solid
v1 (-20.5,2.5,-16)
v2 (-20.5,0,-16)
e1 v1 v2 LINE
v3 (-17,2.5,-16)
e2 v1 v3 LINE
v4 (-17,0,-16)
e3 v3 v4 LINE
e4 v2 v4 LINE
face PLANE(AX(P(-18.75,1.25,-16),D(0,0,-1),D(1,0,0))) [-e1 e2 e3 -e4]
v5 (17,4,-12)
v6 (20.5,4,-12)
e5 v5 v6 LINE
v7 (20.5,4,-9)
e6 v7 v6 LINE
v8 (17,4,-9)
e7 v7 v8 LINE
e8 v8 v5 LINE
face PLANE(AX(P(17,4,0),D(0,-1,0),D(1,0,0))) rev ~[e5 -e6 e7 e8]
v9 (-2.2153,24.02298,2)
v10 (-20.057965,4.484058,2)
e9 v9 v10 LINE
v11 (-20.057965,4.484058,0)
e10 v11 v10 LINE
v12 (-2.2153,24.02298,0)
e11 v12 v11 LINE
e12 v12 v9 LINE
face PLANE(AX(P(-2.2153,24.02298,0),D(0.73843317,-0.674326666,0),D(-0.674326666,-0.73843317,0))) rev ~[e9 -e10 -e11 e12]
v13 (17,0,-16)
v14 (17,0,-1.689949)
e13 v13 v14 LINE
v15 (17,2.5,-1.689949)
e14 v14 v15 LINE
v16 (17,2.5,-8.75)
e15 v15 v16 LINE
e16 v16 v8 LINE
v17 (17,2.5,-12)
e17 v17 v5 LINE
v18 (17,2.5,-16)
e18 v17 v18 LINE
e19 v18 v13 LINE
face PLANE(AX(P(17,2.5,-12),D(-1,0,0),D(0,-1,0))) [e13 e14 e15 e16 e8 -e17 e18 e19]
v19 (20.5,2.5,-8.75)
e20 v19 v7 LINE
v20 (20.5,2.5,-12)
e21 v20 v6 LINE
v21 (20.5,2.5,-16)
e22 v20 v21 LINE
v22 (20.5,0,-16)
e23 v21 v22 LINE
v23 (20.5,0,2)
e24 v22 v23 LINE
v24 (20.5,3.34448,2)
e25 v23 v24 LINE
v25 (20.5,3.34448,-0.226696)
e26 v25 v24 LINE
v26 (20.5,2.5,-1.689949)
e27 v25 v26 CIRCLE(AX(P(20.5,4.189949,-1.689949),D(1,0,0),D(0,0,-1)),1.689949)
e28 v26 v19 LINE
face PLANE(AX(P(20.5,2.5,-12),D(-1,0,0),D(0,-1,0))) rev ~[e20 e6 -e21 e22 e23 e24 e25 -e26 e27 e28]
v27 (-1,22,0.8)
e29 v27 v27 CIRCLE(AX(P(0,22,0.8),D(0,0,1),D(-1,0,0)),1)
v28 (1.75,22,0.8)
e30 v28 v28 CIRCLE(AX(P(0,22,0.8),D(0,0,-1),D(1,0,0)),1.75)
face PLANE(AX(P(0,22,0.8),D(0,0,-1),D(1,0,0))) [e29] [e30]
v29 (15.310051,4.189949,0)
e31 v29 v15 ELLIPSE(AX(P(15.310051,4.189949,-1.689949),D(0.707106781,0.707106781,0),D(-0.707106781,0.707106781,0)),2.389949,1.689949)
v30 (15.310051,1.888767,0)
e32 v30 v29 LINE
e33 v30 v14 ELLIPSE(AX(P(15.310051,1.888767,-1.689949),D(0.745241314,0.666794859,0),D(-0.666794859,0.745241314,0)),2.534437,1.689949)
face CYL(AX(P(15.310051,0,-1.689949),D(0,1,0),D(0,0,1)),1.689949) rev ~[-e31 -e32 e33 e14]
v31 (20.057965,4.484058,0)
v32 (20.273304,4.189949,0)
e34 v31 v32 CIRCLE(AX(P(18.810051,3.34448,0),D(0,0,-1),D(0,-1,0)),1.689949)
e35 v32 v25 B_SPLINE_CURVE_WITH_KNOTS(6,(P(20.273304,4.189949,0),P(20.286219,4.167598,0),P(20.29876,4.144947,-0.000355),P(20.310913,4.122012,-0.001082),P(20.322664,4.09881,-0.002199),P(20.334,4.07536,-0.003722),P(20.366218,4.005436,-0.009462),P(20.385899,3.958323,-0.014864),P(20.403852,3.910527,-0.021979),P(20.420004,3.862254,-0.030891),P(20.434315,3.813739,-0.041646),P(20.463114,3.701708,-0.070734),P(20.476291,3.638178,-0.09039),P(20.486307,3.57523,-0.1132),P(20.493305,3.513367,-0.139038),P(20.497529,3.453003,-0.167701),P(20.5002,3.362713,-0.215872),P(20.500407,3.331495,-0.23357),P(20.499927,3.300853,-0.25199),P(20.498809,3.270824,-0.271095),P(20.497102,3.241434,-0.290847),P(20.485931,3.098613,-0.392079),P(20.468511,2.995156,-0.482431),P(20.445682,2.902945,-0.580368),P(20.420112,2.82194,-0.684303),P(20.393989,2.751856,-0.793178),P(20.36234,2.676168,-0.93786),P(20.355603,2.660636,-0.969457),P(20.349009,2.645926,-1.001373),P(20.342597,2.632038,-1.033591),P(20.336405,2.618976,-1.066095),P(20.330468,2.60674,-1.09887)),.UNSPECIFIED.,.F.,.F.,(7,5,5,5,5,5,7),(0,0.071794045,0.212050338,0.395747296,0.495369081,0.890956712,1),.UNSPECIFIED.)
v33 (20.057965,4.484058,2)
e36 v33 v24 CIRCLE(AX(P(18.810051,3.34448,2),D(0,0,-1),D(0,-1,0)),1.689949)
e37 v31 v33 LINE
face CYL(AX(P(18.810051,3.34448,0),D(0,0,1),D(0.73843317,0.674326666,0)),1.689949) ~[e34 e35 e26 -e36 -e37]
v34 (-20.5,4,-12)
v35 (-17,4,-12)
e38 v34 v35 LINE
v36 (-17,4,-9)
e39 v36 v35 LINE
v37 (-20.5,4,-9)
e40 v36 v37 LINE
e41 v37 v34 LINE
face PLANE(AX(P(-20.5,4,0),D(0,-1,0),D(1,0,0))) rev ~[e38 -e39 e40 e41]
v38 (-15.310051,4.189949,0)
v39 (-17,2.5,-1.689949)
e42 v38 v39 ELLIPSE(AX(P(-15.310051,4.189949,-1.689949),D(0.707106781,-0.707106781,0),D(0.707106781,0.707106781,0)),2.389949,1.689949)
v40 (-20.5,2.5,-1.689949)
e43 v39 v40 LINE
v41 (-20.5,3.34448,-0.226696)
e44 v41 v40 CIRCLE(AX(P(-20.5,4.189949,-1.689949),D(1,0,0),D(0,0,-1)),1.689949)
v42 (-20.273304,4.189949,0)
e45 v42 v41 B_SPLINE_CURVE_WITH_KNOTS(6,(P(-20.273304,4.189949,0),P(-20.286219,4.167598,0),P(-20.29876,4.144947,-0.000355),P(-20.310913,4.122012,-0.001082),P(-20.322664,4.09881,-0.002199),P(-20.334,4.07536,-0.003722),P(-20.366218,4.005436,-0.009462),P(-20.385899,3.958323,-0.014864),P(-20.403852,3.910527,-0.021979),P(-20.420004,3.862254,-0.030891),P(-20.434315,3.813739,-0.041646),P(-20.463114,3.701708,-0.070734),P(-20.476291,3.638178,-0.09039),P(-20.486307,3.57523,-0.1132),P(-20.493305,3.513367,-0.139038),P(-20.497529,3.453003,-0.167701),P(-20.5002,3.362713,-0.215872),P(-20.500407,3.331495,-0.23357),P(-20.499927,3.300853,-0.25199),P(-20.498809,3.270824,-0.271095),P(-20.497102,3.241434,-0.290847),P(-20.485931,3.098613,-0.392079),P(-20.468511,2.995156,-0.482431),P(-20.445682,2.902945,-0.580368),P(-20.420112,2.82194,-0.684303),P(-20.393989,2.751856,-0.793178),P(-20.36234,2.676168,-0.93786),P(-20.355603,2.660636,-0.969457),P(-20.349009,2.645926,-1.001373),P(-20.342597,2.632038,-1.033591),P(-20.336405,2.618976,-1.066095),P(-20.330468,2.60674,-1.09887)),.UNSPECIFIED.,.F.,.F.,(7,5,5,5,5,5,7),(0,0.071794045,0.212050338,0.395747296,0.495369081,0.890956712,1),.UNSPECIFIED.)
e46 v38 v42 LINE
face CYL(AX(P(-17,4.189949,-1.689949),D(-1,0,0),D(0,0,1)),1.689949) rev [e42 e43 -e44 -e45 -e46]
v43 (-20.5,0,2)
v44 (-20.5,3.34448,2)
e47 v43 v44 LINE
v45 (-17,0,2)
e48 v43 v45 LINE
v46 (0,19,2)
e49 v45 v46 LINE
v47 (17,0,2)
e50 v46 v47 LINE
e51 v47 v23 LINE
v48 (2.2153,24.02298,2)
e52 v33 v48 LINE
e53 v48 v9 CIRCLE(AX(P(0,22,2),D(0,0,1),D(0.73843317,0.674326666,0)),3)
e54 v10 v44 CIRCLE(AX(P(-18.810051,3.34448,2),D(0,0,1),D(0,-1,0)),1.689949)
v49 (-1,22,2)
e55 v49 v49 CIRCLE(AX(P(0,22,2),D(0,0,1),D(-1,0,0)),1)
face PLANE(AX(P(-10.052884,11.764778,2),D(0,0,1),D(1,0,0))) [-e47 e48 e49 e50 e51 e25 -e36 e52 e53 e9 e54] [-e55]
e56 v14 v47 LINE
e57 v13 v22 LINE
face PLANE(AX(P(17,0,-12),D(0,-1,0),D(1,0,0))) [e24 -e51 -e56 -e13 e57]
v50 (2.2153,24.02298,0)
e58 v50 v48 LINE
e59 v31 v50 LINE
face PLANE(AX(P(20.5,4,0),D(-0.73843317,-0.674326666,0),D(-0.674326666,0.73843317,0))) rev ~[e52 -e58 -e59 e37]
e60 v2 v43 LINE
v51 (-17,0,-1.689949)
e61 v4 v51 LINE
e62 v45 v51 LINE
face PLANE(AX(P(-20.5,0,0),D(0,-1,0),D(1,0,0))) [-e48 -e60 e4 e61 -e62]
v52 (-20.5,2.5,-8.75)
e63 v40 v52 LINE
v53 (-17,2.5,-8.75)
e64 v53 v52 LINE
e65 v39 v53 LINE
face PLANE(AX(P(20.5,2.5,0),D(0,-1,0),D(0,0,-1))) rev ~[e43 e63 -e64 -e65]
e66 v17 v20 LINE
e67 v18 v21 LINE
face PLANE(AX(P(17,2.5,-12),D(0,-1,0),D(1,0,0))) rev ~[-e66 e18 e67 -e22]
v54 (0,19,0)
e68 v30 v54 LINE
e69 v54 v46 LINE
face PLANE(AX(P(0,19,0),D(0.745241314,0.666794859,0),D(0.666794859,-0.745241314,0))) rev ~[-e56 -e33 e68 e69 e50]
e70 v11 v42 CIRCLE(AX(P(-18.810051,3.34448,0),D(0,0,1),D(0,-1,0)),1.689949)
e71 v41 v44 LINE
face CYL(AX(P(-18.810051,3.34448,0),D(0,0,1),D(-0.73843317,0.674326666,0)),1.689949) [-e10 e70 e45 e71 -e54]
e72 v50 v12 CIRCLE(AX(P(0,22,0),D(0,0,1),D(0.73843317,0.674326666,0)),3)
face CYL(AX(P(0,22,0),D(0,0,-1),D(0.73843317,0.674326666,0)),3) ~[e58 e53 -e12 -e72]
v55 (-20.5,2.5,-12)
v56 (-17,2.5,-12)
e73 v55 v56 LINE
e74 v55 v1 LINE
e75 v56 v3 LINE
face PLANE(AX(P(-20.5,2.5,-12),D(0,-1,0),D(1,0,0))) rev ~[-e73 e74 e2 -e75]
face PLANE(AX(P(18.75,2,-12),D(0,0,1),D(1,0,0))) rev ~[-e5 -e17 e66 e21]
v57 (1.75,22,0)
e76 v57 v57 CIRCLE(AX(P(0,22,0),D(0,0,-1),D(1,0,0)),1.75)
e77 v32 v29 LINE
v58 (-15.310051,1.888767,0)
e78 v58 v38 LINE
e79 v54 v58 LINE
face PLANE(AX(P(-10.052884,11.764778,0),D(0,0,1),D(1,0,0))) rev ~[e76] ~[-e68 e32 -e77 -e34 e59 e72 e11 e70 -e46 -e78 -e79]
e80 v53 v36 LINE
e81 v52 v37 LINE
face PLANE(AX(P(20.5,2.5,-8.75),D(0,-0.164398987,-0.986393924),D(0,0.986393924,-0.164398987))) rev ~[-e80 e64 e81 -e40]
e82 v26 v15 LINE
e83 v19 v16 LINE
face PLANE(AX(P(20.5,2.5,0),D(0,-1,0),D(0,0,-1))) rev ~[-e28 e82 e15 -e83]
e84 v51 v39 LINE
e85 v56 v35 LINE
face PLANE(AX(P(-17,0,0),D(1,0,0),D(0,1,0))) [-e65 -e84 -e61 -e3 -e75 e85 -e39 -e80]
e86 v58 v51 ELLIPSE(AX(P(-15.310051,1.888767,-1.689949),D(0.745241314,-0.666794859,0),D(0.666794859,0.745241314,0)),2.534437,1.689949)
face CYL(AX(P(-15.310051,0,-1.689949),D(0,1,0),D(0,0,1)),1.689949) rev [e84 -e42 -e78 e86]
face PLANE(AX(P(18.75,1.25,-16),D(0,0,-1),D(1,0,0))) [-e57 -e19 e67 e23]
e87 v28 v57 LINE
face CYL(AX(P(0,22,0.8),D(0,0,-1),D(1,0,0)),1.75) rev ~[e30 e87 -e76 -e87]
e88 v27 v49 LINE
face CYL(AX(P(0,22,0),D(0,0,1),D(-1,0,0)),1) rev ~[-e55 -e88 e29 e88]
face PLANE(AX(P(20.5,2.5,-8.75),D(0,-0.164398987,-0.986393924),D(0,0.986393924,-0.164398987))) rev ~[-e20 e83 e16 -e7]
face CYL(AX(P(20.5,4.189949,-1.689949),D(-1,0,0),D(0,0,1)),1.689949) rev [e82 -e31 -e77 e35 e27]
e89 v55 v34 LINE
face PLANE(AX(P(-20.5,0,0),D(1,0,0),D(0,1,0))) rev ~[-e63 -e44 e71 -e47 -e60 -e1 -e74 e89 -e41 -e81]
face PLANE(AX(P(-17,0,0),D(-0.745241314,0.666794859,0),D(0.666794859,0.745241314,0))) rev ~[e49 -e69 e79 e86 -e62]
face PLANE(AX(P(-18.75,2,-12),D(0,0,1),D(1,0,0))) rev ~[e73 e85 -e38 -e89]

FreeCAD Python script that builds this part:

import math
import FreeCAD as App
import Part
import Sketcher

V = App.Vector
Q = App.Units.Quantity


def edges_at(feature, points):
    """Names of the edges that pass closest to the given points."""
    edges = feature.Shape.Edges
    near = lambda p: min(range(len(edges)), key=lambda i: edges[i].distToShape(Part.Vertex(*p))[0])
    return sorted({f"Edge{near(p) + 1}" for p in points})


def add_polygon(sketch, points):
    """Adds a closed chain of lines whose ends are joined by coincident constraints."""
    first, n = sketch.GeometryCount, len(points)
    for a, b in zip(points, points[1:] + points[:1]):
        sketch.addGeometry(Part.LineSegment(App.Vector(*a, 0), App.Vector(*b, 0)), False)
    for i in range(n):
        sketch.addConstraint(Sketcher.Constraint("Coincident", first + i, 2, first + (i + 1) % n, 1))

doc = App.newDocument("Part")
params = doc.addObject("Spreadsheet::Sheet", "Params")
for row, (alias, value) in enumerate([
    ("sketch1_radius", "3 mm"),
    ("sketch1_height", "4 mm"),
    ("sketch1_width", "3.5 mm"),
    ("pad1_length", "2 mm"),
    ("sketch2_diameter", "2 mm"),
    ("hole_diameter", "2 mm"),
    ("hole_cbore_diameter", "3.5 mm"),
    ("hole_cbore_depth", "0.8 mm"),
    ("sketch3_height", "4 mm"),
    ("sketch3_width", "3.5 mm"),
    ("pad2_length", "12 mm"),
    ("sketch4_height", "9 mm"),
    ("sketch4_width", "1.5 mm"),
    ("sketch4_height2", "8.75 mm"),
    ("fillet_radius", "1.689949 mm"),
    ("fillet2_radius", "1.689949 mm"),
    ("fillet3_radius", "1.689949 mm"),
    ("fillet4_radius", "1.689949 mm"),
    ("sketch5_width", "3.5 mm"),
    ("sketch5_height", "2.5 mm"),
    ("pad3_length", "4 mm"),
], start=1):
    params.set(f"A{row}", alias)
    params.set(f"B{row}", "=" + value)
    params.setAlias(f"B{row}", alias)

body = doc.addObject("PartDesign::Body", "Body")

# Sketch on XY plane
sketch1 = body.newObject("Sketcher::SketchObject", "Sketch")
sketch1.AttachmentSupport = (doc.getObject("XY_Plane"), [""])
sketch1.MapMode = "FlatFace"
sketch1.addGeometry([
    Part.LineSegment(V(-17, 0, 0), V(0, 19, 0)),  # 0
    Part.LineSegment(V(0, 19, 0), V(17, 0, 0)),  # 1
    Part.LineSegment(V(17, 0, 0), V(20.5, 0, 0)),  # 2
    Part.LineSegment(V(20.5, 0, 0), V(20.5, 4, 0)),  # 3
    Part.LineSegment(V(20.5, 4, 0), V(2.2, 24, 0)),  # 4
    Part.ArcOfCircle(Part.Circle(V(0, 22, 0), V(0, 0, 1), 3), math.radians(42), math.radians(138)),  # 5
    Part.LineSegment(V(-2.2, 24, 0), V(-20.5, 4, 0)),  # 6
    Part.LineSegment(V(-20.5, 4, 0), V(-20.5, 0, 0)),  # 7
    Part.LineSegment(V(-20.5, 0, 0), V(-17, 0, 0)),  # 8
], False)
sketch1.addConstraint([
    Sketcher.Constraint("Coincident", 0, 2, 1, 1),
    Sketcher.Constraint("Coincident", 1, 2, 2, 1),
    Sketcher.Constraint("Coincident", 2, 2, 3, 1),
    Sketcher.Constraint("Coincident", 3, 2, 4, 1),
    Sketcher.Constraint("Tangent", 4, 2, 5, 1),
    Sketcher.Constraint("Tangent", 5, 2, 6, 1),
    Sketcher.Constraint("Coincident", 6, 2, 7, 1),
    Sketcher.Constraint("Coincident", 7, 2, 8, 1),
    Sketcher.Constraint("Coincident", 8, 2, 0, 1),
    Sketcher.Constraint("Horizontal", 2),
    Sketcher.Constraint("Vertical", 3),
    Sketcher.Constraint("Vertical", 7),
    Sketcher.Constraint("Horizontal", 8),
    Sketcher.Constraint("Symmetric", 2, 2, 7, 2, -1, 1),
    Sketcher.Constraint("Symmetric", 4, 2, 5, 2, -2),
    Sketcher.Constraint("Symmetric", 1, 2, 8, 2, -2),
    Sketcher.Constraint("PointOnObject", 0, 2, -2),
    Sketcher.Constraint("Radius", 5, Q("3 mm")),
    Sketcher.Constraint("DistanceY", 3, 1, 3, 2, Q("4 mm")),
    Sketcher.Constraint("DistanceX", 2, 1, 2, 2, Q("3.5 mm")),
    Sketcher.Constraint("DistanceY", -1, 1, 5, 3, Q("22 mm")),
    Sketcher.Constraint("DistanceY", -1, 1, 0, 2, Q("19 mm")),
    Sketcher.Constraint("DistanceX", -1, 1, 1, 2, Q("17 mm")),
])
sketch1.setExpression("Constraints[17]", "Params.sketch1_radius")
sketch1.setExpression("Constraints[18]", "Params.sketch1_height")
sketch1.setExpression("Constraints[19]", "Params.sketch1_width")
pad1 = body.newObject("PartDesign::Pad", "Pad")
pad1.Profile = sketch1
pad1.setExpression("Length", "Params.pad1_length")

# Sketch on XY plane
sketch2 = body.newObject("Sketcher::SketchObject", "Sketch001")
sketch2.AttachmentSupport = (doc.getObject("XY_Plane"), [""])
sketch2.MapMode = "FlatFace"
sketch2.addGeometry(Part.Circle(V(0, 22, 0), V(0, 0, 1), 1), False)
sketch2.addConstraint([
    Sketcher.Constraint("PointOnObject", 0, 3, -2),
    Sketcher.Constraint("Diameter", 0, Q("2 mm")),
    Sketcher.Constraint("DistanceY", -1, 1, 0, 3, Q("22 mm")),
])
sketch2.setExpression("Constraints[1]", "Params.sketch2_diameter")
doc.recompute()
hole = body.newObject("PartDesign::Hole", "Hole")
hole.Profile = sketch2
hole.ThreadType = "None"
hole.setExpression("Diameter", "Params.hole_diameter")
hole.DepthType = "ThroughAll"
hole.HoleCutType = "Counterbore"
hole.setExpression("HoleCutDiameter", "Params.hole_cbore_diameter")
hole.setExpression("HoleCutDepth", "Params.hole_cbore_depth")
hole.Reversed = True

# Sketch on XY plane
sketch3 = body.newObject("Sketcher::SketchObject", "Sketch002")
sketch3.AttachmentSupport = (doc.getObject("XY_Plane"), [""])
sketch3.MapMode = "FlatFace"
add_polygon(sketch3, [(17, 4), (17, 0), (20.5, 0), (20.5, 4)])  # lines 0-3
add_polygon(sketch3, [(-20.5, 4), (-20.5, 0), (-17, 0), (-17, 4)])  # lines 4-7
sketch3.addConstraint([
    Sketcher.Constraint("Vertical", 0),
    Sketcher.Constraint("Horizontal", 1),
    Sketcher.Constraint("Vertical", 2),
    Sketcher.Constraint("Horizontal", 3),
    Sketcher.Constraint("Vertical", 4),
    Sketcher.Constraint("Horizontal", 5),
    Sketcher.Constraint("Vertical", 6),
    Sketcher.Constraint("Horizontal", 7),
    Sketcher.Constraint("Symmetric", 1, 2, 4, 2, -1, 1),
    Sketcher.Constraint("Symmetric", 0, 2, 5, 2, -2),
    Sketcher.Constraint("Horizontal", 3, 2, 6, 2),
    Sketcher.Constraint("DistanceY", 0, 2, 0, 1, Q("4 mm")),
    Sketcher.Constraint("DistanceX", 1, 1, 1, 2, Q("3.5 mm")),
    Sketcher.Constraint("DistanceX", -1, 1, 0, 2, Q("17 mm")),
])
sketch3.setExpression("Constraints[19]", "Params.sketch3_height")
sketch3.setExpression("Constraints[20]", "Params.sketch3_width")
pad2 = body.newObject("PartDesign::Pad", "Pad001")
pad2.Profile = sketch3
pad2.setExpression("Length", "Params.pad2_length")
pad2.Reversed = True

# Sketch on YZ plane
sketch4 = body.newObject("Sketcher::SketchObject", "Sketch003")
sketch4.AttachmentSupport = (doc.getObject("YZ_Plane"), [""])
sketch4.MapMode = "FlatFace"
sketch4.AttachmentOffset = App.Placement(V(0, 0, 20.5), App.Rotation())
add_polygon(sketch4, [(4, -9), (4, 0), (2.5, 0), (2.5, -8.8)])  # lines 0-3
sketch4.addConstraint([
    Sketcher.Constraint("Vertical", 0),
    Sketcher.Constraint("Horizontal", 1),
    Sketcher.Constraint("Vertical", 2),
    Sketcher.Constraint("PointOnObject", 0, 2, -1),
    Sketcher.Constraint("DistanceY", 0, 1, 0, 2, Q("9 mm")),
    Sketcher.Constraint("DistanceX", 1, 2, 1, 1, Q("1.5 mm")),
    Sketcher.Constraint("DistanceX", -1, 1, 0, 2, Q("4 mm")),
    Sketcher.Constraint("DistanceY", 2, 2, 2, 1, Q("8.75 mm")),
])
sketch4.setExpression("Constraints[8]", "Params.sketch4_height")
sketch4.setExpression("Constraints[9]", "Params.sketch4_width")
sketch4.setExpression("Constraints[11]", "Params.sketch4_height2")
pocket1 = body.newObject("PartDesign::Pocket", "Pocket")
pocket1.Profile = sketch4
pocket1.Type = "ThroughAll"
doc.recompute()

fillet = body.newObject("PartDesign::Fillet", "Fillet")
fillet.Base = (pocket1, edges_at(pocket1, [(20.5, 4, 1)]))
fillet.setExpression("Radius", "Params.fillet_radius")
doc.recompute()

fillet2 = body.newObject("PartDesign::Fillet", "Fillet001")
fillet2.Base = (fillet, edges_at(fillet, [(-20.5, 4, 1)]))
fillet2.setExpression("Radius", "Params.fillet2_radius")
doc.recompute()

fillet3 = body.newObject("PartDesign::Fillet", "Fillet002")
fillet3.Base = (fillet2, edges_at(fillet2, [(-17, 1.25, 0), (-18.75, 2.5, 0)]))
fillet3.setExpression("Radius", "Params.fillet3_radius")
doc.recompute()

fillet4 = body.newObject("PartDesign::Fillet", "Fillet003")
fillet4.Base = (fillet3, edges_at(fillet3, [(18.75, 2.5, 0), (17, 1.25, 0)]))
fillet4.setExpression("Radius", "Params.fillet4_radius")

# Sketch on XY plane
sketch5 = body.newObject("Sketcher::SketchObject", "Sketch004")
sketch5.AttachmentSupport = (doc.getObject("XY_Plane"), [""])
sketch5.MapMode = "FlatFace"
sketch5.AttachmentOffset = App.Placement(V(0, 0, -12), App.Rotation())
add_polygon(sketch5, [(17, 0), (17, 2.5), (20.5, 2.5), (20.5, 0)])  # lines 0-3
add_polygon(sketch5, [(-20.5, 0), (-20.5, 2.5), (-17, 2.5), (-17, 0)])  # lines 4-7
sketch5.addConstraint([
    Sketcher.Constraint("Vertical", 0),
    Sketcher.Constraint("Horizontal", 1),
    Sketcher.Constraint("Vertical", 2),
    Sketcher.Constraint("Horizontal", 3),
    Sketcher.Constraint("Vertical", 4),
    Sketcher.Constraint("Horizontal", 5),
    Sketcher.Constraint("Vertical", 6),
    Sketcher.Constraint("Horizontal", 7),
    Sketcher.Constraint("Symmetric", 3, 2, 6, 2, -1, 1),
    Sketcher.Constraint("Symmetric", 1, 2, 4, 2, -2),
    Sketcher.Constraint("PointOnObject", 2, 2, -1),
    Sketcher.Constraint("DistanceX", 1, 1, 1, 2, Q("3.5 mm")),
    Sketcher.Constraint("DistanceY", 0, 1, 0, 2, Q("2.5 mm")),
    Sketcher.Constraint("DistanceX", -1, 1, 0, 2, Q("17 mm")),
])
sketch5.setExpression("Constraints[19]", "Params.sketch5_width")
sketch5.setExpression("Constraints[20]", "Params.sketch5_height")
pad3 = body.newObject("PartDesign::Pad", "Pad002")
pad3.Profile = sketch5
pad3.setExpression("Length", "Params.pad3_length")
pad3.Reversed = True

doc.recompute()
